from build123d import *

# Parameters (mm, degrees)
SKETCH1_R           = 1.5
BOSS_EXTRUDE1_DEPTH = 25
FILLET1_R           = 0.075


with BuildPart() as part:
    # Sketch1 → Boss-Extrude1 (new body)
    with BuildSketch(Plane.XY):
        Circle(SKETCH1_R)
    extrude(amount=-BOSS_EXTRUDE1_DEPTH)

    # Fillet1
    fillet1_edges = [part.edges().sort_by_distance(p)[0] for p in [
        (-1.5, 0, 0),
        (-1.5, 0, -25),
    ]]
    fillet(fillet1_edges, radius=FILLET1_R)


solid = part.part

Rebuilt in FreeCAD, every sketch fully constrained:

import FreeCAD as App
import Part
import Sketcher

V = App.Vector
Q = App.Units.Quantity


def edges_at(feature, points):
    """Names of the edges that pass closest to the given points."""
    edges = feature.Shape.Edges
    near = lambda p: min(range(len(edges)), key=lambda i: edges[i].distToShape(Part.Vertex(*p))[0])
    return sorted({f"Edge{near(p) + 1}" for p in points})

doc = App.newDocument("Part")
body = doc.addObject("PartDesign::Body", "Body")

sketch1 = body.newObject("Sketcher::SketchObject", "Sketch")
sketch1.AttachmentSupport = (doc.getObject("XY_Plane"), [""])
sketch1.MapMode = "FlatFace"
sketch1.addGeometry(Part.Circle(V(0, 0, 0), V(0, 0, 1), 1.5), False)
sketch1.addConstraint([
    Sketcher.Constraint("Coincident", 0, 3, -1, 1),
    Sketcher.Constraint("Diameter", 0, Q("3 mm")),
])
pad1 = body.newObject("PartDesign::Pad", "Pad")
pad1.Profile = sketch1
pad1.Length = 25
pad1.Reversed = True
doc.recompute()

fillet = body.newObject("PartDesign::Fillet", "Fillet")
fillet.Base = (pad1, edges_at(pad1, [(-1.5, 0, 0), (-1.5, 0, -25)]))
fillet.Radius = 0.075

doc.recompute()
